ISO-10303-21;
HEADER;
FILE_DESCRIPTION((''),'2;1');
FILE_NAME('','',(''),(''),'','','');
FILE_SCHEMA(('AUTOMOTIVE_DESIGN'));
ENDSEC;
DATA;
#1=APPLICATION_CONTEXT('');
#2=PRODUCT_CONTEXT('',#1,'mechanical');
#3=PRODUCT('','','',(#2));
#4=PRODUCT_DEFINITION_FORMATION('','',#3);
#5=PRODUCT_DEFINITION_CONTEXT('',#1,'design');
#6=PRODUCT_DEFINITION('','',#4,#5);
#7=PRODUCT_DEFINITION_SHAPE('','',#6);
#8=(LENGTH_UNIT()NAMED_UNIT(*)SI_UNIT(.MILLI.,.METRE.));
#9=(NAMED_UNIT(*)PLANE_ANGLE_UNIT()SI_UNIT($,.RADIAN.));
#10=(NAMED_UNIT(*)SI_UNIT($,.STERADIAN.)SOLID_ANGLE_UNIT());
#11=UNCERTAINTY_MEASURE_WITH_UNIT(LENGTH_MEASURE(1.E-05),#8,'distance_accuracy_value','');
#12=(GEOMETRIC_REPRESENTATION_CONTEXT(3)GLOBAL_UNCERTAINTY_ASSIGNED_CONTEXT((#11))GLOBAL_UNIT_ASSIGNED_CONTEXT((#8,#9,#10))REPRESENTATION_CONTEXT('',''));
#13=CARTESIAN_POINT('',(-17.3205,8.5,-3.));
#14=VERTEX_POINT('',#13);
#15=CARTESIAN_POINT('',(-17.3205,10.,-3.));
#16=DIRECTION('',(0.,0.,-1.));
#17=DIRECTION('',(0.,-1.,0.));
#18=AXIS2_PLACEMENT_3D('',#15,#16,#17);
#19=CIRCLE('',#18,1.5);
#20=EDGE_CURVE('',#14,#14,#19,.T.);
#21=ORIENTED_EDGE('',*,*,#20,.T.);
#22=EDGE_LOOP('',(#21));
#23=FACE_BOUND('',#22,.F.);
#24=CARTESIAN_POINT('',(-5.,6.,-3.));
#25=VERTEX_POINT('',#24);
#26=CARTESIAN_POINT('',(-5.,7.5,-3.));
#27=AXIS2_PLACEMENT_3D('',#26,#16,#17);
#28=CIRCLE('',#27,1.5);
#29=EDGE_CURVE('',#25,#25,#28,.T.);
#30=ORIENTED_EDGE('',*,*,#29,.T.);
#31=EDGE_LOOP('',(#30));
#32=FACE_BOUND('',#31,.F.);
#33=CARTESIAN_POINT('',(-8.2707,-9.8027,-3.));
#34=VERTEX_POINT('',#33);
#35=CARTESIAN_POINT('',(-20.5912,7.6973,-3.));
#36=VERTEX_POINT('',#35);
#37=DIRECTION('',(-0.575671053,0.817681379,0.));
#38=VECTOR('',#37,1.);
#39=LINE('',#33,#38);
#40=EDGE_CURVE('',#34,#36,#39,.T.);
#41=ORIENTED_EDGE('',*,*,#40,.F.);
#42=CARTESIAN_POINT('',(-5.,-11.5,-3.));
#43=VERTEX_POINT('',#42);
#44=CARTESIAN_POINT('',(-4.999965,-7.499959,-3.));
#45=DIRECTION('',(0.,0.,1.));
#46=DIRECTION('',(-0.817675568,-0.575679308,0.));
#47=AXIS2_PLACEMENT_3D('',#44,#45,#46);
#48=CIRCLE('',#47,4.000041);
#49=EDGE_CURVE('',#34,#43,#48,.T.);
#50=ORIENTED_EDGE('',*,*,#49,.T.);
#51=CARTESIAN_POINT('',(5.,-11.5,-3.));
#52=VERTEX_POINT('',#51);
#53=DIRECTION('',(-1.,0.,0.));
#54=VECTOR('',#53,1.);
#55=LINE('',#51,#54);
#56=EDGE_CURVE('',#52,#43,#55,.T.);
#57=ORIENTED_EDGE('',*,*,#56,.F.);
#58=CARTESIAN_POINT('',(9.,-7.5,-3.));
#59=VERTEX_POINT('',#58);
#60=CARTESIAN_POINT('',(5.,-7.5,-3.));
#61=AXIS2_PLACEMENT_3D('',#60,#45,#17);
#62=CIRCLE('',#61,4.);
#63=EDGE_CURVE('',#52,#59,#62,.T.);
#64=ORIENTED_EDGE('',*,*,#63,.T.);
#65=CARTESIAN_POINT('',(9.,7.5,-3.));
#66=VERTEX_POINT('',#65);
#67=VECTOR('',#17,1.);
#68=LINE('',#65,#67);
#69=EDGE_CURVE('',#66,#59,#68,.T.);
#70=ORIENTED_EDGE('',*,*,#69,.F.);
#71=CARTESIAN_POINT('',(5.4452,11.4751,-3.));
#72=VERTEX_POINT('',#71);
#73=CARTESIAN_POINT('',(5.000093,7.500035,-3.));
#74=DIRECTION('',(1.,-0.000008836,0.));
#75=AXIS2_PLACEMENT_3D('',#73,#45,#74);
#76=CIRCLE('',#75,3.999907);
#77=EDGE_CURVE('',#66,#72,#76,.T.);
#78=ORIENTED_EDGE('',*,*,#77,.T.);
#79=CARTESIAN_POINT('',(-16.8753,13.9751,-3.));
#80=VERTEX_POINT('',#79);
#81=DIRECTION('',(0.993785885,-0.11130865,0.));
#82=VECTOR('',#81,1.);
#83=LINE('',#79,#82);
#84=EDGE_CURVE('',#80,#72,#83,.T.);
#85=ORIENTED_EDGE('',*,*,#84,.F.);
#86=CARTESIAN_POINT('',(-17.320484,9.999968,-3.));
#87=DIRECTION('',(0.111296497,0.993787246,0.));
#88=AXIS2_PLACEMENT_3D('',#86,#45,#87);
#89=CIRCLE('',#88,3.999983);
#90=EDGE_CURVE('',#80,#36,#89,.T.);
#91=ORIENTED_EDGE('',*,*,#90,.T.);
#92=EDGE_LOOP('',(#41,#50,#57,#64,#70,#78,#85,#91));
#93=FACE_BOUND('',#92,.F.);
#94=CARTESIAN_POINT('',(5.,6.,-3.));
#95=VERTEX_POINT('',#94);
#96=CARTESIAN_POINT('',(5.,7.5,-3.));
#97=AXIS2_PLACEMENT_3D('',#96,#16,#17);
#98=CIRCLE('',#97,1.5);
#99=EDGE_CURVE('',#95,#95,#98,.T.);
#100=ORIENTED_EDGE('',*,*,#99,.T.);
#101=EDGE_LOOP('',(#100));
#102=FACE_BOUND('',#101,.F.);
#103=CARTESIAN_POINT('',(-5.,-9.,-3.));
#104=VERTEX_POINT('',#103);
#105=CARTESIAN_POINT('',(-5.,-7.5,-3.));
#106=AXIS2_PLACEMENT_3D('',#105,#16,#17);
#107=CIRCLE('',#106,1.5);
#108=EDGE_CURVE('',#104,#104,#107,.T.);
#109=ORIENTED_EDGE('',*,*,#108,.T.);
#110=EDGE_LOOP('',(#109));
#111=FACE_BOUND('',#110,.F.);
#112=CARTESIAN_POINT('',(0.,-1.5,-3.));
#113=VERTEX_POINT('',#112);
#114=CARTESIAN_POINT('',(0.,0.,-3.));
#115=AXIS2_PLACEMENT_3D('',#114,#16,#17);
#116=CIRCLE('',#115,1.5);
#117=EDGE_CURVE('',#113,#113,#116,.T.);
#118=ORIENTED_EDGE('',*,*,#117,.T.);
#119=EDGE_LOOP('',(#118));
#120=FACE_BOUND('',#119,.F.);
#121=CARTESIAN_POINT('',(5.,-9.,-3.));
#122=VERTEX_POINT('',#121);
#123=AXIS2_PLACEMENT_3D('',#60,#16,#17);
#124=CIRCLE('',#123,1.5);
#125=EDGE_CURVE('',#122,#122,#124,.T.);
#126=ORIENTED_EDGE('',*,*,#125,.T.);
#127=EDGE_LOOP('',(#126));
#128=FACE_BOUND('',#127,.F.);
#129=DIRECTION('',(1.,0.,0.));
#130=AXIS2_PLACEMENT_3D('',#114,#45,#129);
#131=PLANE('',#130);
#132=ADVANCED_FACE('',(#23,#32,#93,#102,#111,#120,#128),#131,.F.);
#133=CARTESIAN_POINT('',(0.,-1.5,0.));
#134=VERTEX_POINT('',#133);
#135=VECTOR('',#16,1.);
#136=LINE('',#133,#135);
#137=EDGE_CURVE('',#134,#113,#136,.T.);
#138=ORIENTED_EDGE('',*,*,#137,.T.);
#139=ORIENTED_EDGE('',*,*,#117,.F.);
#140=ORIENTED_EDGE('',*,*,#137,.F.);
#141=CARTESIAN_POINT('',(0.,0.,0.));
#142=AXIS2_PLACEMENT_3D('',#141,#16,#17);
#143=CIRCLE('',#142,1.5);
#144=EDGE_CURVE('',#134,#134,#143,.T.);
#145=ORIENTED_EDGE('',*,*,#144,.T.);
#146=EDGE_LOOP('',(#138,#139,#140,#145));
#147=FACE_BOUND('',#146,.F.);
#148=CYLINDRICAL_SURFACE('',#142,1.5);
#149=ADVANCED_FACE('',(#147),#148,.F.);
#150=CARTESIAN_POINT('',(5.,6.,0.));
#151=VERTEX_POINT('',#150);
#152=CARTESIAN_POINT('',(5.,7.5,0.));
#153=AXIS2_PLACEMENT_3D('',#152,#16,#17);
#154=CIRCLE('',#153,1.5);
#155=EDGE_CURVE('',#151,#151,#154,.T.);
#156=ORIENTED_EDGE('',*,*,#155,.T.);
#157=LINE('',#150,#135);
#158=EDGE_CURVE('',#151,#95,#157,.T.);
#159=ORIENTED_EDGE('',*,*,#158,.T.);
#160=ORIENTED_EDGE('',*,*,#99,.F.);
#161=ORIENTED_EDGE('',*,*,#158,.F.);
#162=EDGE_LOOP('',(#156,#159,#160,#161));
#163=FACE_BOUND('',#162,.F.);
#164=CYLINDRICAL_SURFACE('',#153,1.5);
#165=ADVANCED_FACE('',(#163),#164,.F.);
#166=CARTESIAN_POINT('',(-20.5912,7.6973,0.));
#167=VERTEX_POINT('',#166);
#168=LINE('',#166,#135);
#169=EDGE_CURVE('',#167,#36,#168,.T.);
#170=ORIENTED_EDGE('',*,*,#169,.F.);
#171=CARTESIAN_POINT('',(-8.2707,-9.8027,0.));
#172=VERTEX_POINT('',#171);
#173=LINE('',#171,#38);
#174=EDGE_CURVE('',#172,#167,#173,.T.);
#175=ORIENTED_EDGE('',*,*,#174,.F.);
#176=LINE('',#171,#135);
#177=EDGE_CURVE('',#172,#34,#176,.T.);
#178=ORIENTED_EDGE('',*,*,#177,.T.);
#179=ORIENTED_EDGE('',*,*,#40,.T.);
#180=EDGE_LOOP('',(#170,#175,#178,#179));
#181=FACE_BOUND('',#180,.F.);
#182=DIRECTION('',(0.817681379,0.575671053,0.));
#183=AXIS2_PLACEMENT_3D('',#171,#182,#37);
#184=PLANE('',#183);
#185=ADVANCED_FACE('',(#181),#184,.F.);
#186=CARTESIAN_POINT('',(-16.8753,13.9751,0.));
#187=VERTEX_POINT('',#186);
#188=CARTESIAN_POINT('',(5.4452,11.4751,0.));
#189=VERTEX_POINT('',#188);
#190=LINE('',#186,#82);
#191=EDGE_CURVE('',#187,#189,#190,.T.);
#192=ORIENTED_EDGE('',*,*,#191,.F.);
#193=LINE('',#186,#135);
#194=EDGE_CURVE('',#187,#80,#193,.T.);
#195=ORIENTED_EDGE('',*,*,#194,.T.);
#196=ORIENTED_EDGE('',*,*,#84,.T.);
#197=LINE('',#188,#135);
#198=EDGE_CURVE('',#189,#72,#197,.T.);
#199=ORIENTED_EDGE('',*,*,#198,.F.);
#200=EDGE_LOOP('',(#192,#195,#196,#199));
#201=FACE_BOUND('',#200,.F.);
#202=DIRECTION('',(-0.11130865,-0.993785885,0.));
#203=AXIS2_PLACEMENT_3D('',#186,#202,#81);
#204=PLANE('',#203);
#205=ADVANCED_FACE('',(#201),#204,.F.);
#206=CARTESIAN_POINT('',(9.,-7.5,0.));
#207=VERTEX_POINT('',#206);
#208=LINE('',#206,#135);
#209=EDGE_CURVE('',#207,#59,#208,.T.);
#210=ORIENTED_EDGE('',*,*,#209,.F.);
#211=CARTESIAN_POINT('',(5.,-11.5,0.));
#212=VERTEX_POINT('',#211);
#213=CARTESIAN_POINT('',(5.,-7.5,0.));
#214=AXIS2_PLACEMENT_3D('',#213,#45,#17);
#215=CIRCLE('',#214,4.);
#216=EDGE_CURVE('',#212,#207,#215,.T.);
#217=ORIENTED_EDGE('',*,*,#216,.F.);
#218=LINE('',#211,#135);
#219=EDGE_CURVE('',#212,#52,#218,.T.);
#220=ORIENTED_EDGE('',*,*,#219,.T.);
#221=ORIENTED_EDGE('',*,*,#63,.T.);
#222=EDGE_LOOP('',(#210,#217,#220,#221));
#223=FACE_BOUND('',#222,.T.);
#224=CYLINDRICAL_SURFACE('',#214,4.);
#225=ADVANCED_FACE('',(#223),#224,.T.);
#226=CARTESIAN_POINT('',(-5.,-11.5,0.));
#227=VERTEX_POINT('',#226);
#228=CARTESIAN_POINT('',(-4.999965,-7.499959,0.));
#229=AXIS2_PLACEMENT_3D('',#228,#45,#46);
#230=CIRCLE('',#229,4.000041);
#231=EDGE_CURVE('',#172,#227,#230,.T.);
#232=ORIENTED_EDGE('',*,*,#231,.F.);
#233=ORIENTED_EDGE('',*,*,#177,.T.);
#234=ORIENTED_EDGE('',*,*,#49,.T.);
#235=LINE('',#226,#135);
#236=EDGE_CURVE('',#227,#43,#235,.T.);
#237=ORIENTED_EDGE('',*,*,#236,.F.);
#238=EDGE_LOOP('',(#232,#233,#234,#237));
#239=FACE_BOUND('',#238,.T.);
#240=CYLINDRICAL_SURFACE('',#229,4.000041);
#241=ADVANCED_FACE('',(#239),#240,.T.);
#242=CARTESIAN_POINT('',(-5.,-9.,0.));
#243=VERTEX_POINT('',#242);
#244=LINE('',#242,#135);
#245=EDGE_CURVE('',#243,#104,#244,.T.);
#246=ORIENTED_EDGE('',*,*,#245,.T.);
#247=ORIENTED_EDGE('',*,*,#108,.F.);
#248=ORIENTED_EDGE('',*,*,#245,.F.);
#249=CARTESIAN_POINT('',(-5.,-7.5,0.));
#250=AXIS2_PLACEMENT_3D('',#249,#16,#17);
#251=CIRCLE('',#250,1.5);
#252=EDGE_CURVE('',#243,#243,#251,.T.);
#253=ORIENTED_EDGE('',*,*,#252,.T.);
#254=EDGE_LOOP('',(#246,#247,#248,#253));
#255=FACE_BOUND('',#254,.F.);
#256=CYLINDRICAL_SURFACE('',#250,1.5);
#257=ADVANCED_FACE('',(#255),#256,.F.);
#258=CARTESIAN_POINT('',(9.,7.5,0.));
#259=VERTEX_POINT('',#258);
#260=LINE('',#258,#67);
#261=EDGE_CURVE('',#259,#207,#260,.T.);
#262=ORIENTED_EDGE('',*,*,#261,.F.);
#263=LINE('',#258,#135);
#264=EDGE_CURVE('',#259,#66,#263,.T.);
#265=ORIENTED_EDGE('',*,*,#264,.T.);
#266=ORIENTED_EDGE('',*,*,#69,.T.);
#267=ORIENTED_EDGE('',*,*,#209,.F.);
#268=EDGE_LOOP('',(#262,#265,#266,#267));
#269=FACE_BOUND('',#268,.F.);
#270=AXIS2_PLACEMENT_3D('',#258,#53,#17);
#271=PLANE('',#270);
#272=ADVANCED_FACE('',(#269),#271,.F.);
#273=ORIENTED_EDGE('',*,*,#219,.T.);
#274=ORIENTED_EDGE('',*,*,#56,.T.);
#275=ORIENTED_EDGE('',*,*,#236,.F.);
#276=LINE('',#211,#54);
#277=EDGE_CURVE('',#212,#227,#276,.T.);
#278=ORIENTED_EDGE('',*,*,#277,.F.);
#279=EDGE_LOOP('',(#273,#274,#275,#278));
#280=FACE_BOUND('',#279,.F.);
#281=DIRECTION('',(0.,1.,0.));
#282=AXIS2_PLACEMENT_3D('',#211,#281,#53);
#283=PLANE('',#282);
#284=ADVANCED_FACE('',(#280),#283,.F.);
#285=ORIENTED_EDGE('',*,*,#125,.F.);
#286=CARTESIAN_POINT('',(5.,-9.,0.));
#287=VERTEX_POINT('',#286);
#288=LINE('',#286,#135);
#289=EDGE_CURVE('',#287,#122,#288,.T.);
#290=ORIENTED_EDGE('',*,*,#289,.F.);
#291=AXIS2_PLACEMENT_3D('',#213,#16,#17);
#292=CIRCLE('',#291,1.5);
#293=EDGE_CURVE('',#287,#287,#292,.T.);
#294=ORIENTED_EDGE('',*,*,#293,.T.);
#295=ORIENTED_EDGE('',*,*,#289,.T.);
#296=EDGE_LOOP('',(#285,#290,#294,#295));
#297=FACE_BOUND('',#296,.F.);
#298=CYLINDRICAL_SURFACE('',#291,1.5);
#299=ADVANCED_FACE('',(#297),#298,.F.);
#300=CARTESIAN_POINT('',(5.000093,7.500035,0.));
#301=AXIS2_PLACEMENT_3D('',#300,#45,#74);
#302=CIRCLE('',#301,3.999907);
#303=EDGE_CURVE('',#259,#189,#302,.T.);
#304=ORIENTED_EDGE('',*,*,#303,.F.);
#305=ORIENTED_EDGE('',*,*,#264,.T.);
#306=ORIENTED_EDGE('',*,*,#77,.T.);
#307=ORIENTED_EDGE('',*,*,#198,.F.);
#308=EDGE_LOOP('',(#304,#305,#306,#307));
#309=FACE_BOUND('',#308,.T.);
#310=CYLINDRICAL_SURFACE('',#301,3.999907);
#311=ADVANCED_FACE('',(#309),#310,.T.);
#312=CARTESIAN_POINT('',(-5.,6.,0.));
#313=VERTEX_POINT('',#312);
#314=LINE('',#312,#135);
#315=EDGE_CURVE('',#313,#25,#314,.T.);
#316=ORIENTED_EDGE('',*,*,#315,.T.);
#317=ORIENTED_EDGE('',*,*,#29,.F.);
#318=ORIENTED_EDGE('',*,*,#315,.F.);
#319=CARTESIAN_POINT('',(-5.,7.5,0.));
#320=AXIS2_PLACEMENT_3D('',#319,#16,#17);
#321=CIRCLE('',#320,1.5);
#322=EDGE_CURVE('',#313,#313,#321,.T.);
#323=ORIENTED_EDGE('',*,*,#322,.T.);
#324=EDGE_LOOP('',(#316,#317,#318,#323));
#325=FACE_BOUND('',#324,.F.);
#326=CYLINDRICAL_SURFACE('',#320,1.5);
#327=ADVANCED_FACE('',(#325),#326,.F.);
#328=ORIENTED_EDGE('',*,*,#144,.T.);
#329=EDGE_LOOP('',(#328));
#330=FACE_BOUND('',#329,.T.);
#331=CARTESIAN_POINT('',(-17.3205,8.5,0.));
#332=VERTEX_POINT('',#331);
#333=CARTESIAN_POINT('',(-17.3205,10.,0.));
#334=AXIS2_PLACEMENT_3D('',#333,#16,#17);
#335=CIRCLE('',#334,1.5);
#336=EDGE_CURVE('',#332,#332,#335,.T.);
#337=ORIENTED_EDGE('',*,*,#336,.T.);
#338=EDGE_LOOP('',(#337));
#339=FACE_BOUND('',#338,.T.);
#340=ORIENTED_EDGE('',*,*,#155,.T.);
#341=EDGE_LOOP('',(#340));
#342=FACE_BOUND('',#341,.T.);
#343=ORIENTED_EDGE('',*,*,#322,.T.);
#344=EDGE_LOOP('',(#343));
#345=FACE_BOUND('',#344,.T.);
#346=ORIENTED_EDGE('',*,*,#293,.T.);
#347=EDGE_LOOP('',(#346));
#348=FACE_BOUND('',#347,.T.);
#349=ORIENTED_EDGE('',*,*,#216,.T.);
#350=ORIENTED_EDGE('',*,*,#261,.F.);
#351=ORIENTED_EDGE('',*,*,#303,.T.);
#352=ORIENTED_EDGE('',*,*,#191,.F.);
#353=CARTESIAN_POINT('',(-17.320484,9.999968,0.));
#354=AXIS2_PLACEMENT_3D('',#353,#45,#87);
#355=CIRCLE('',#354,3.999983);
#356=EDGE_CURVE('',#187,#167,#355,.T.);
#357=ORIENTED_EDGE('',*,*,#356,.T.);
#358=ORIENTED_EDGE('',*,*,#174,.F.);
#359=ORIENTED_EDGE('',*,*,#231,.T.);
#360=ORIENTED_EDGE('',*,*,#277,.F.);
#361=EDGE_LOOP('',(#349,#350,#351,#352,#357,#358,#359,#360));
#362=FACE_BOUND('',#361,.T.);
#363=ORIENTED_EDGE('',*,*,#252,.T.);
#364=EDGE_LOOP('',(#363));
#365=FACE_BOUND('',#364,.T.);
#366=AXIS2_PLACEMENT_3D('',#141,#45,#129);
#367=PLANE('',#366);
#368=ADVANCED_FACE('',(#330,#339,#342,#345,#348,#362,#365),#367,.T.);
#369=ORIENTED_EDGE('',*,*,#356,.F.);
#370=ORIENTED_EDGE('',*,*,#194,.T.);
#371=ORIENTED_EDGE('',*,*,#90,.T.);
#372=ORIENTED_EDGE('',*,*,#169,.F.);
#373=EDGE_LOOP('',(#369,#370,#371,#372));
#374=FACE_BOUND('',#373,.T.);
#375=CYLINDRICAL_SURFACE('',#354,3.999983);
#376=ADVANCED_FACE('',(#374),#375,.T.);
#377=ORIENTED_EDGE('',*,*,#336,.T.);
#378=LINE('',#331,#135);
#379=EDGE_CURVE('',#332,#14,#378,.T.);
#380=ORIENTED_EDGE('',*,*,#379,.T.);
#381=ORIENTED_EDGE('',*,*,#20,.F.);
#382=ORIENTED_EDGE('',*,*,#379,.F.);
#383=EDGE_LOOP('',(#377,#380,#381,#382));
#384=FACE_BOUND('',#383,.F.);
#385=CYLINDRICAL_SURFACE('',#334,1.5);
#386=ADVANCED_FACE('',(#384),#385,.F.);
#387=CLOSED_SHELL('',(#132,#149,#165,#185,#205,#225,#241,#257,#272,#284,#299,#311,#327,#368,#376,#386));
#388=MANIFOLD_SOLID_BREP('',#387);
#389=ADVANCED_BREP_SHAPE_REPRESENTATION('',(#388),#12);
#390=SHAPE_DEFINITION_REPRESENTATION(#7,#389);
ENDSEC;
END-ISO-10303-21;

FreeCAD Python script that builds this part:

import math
import FreeCAD as App
import Part
import Sketcher
Q = App.Units.Quantity

doc = App.newDocument("Part")
params = doc.addObject("Spreadsheet::Sheet", "Params")
for row, (alias, value) in enumerate([
    ("sketch1_radius", "4 mm"),
    ("sketch1_width", "10 mm"),
    ("sketch1_height", "15 mm"),
    ("pad1_length", "3 mm"),
    ("sketch2_diameter", "3 mm"),
    ("hole_diameter", "3 mm"),
    ("hole_depth", "8 mm"),
    ("sketch3_diameter", "3 mm"),
    ("hole2_diameter", "3 mm"),
    ("hole2_depth", "8 mm"),
], start=1):
    params.set(f"A{row}", alias)
    params.set(f"B{row}", "=" + value)
    params.setAlias(f"B{row}", alias)

body = doc.addObject("PartDesign::Body", "Body")

# Sketch on XY plane
sketch1 = body.newObject("Sketcher::SketchObject", "Sketch")
sketch1.AttachmentSupport = (doc.getObject("XY_Plane"), [""])
sketch1.MapMode = "FlatFace"
sketch1.addGeometry([
    Part.LineSegment(App.Vector(5.4, 11.5, 0), App.Vector(-16.9, 14, 0)),  # 0
    Part.ArcOfCircle(Part.Circle(App.Vector(-17.3, 10, 0), App.Vector(0, 0, 1), 4), math.radians(84), math.radians(215)),  # 1
    Part.LineSegment(App.Vector(-20.6, 7.7, 0), App.Vector(-8.3, -9.8, 0)),  # 2
    Part.ArcOfCircle(Part.Circle(App.Vector(-5, -7.5, 0), App.Vector(0, 0, 1), 4), math.radians(-145), math.radians(-90)),  # 3
    Part.LineSegment(App.Vector(-5, -11.5, 0), App.Vector(5, -11.5, 0)),  # 4
    Part.ArcOfCircle(Part.Circle(App.Vector(5, -7.5, 0), App.Vector(0, 0, 1), 4), math.radians(-90), math.radians(0)),  # 5
    Part.LineSegment(App.Vector(9, -7.5, 0), App.Vector(9, 7.5, 0)),  # 6
    Part.ArcOfCircle(Part.Circle(App.Vector(5, 7.5, 0), App.Vector(0, 0, 1), 4), math.radians(0), math.radians(84)),  # 7
], False)
sketch1.addConstraint([
    Sketcher.Constraint("Tangent", 0, 2, 1, 1),
    Sketcher.Constraint("Tangent", 1, 2, 2, 1),
    Sketcher.Constraint("Tangent", 2, 2, 3, 1),
    Sketcher.Constraint("Tangent", 3, 2, 4, 1),
    Sketcher.Constraint("Tangent", 4, 2, 5, 1),
    Sketcher.Constraint("Tangent", 5, 2, 6, 1),
    Sketcher.Constraint("Tangent", 6, 2, 7, 1),
    Sketcher.Constraint("Tangent", 7, 2, 0, 1),
    Sketcher.Constraint("Horizontal", 4),
    Sketcher.Constraint("Vertical", 6),
    Sketcher.Constraint("Equal", 1, 3),
    Sketcher.Constraint("Equal", 3, 5),
    Sketcher.Constraint("Equal", 5, 7),
    Sketcher.Constraint("Symmetric", 3, 3, 7, 3, -1, 1),
    Sketcher.Constraint("Radius", 1, 4.0),
    Sketcher.Constraint("DistanceX", 4, 1, 4, 2, 10.0),
    Sketcher.Constraint("DistanceY", 6, 1, 6, 2, 15.0),
    Sketcher.Constraint("DistanceY", -1, 1, 1, 3, 10.0),
    Sketcher.Constraint("Angle", 0, Q("173.6092 deg")),
])
sketch1.setExpression("Constraints[14]", "Params.sketch1_radius")
sketch1.setExpression("Constraints[15]", "Params.sketch1_width")
sketch1.setExpression("Constraints[16]", "Params.sketch1_height")
pad1 = body.newObject("PartDesign::Pad", "Pad")
pad1.Profile = sketch1
pad1.setExpression("Length", "Params.pad1_length")
pad1.Reversed = True

# Sketch on XY plane
sketch2 = body.newObject("Sketcher::SketchObject", "Sketch001")
sketch2.AttachmentSupport = (doc.getObject("XY_Plane"), [""])
sketch2.MapMode = "FlatFace"
sketch2.addGeometry([
    Part.Circle(App.Vector(-17.3, 10, 0), App.Vector(0, 0, 1), 1.5),  # 0
    Part.Circle(App.Vector(-5, 7.5, 0), App.Vector(0, 0, 1), 1.5),  # 1
    Part.Circle(App.Vector(5, 7.5, 0), App.Vector(0, 0, 1), 1.5),  # 2
    Part.Circle(App.Vector(5, -7.5, 0), App.Vector(0, 0, 1), 1.5),  # 3
    Part.Circle(App.Vector(-5, -7.5, 0), App.Vector(0, 0, 1), 1.5),  # 4
], False)
sketch2.addConstraint([
    Sketcher.Constraint("Equal", 0, 1),
    Sketcher.Constraint("Equal", 1, 2),
    Sketcher.Constraint("Equal", 2, 3),
    Sketcher.Constraint("Equal", 3, 4),
    Sketcher.Constraint("Symmetric", 1, 3, 3, 3, -1, 1),
    Sketcher.Constraint("Symmetric", 2, 3, 4, 3, -1, 1),
    Sketcher.Constraint("Symmetric", 1, 3, 2, 3, -2),
    Sketcher.Constraint("Diameter", 0, 3.0),
    Sketcher.Constraint("DistanceY", -1, 1, 0, 3, 10.0),
    Sketcher.Constraint("DistanceX", 1, 3, -1, 1, 5.0),
    Sketcher.Constraint("DistanceY", 3, 3, 2, 3, 15.0),
    Sketcher.Constraint("DistanceX", 0, 3, -1, 1, 17.3205),
])
sketch2.setExpression("Constraints[7]", "Params.sketch2_diameter")
doc.recompute()
hole = body.newObject("PartDesign::Hole", "Hole")
hole.Profile = sketch2
hole.ThreadType = "None"
hole.setExpression("Diameter", "Params.hole_diameter")
hole.DepthType = "Dimension"
hole.setExpression("Depth", "Params.hole_depth")
hole.DrillPoint = "Angled"
hole.DrillPointAngle = 118

# Sketch on XY plane
sketch3 = body.newObject("Sketcher::SketchObject", "Sketch002")
sketch3.AttachmentSupport = (doc.getObject("XY_Plane"), [""])
sketch3.MapMode = "FlatFace"
sketch3.addGeometry(Part.Circle(App.Vector(0, 0, 0), App.Vector(0, 0, 1), 1.5), False)
sketch3.addConstraint([
    Sketcher.Constraint("Coincident", 0, 3, -1, 1),
    Sketcher.Constraint("Diameter", 0, 3.0),
])
sketch3.setExpression("Constraints[1]", "Params.sketch3_diameter")
doc.recompute()
hole2 = body.newObject("PartDesign::Hole", "Hole001")
hole2.Profile = sketch3
hole2.ThreadType = "None"
hole2.setExpression("Diameter", "Params.hole2_diameter")
hole2.DepthType = "Dimension"
hole2.setExpression("Depth", "Params.hole2_depth")
hole2.DrillPoint = "Angled"
hole2.DrillPointAngle = 118

doc.recompute()
